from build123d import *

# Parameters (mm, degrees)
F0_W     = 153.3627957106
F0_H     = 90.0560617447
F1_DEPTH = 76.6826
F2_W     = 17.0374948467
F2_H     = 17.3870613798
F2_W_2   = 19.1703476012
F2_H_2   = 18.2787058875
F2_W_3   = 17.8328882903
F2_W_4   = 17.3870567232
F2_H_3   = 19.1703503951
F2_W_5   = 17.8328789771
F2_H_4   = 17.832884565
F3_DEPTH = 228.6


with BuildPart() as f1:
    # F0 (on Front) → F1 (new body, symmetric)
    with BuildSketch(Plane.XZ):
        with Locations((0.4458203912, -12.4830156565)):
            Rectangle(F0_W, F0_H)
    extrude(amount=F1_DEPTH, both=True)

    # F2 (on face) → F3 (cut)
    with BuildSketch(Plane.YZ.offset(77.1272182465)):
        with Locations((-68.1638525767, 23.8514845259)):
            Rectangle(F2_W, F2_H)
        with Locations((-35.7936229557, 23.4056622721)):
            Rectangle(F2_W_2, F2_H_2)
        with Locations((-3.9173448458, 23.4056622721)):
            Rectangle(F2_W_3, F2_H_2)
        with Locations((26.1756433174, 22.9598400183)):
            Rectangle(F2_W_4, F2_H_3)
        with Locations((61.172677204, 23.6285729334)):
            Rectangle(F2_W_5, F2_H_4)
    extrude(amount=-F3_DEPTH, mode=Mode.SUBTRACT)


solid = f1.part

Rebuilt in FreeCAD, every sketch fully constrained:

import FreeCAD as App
import Part
import Sketcher
from FreeCAD import Vector
Q = App.Units.Quantity

doc = App.newDocument("Part")
params = doc.addObject("Spreadsheet::Sheet", "Params")
for row, (alias, value) in enumerate([
    ("pad1_length", "6.038 in"),
    ("pocket1_length", "9 in"),
], start=1):
    params.set(f"A{row}", alias)
    params.set(f"B{row}", "=" + value)
    params.setAlias(f"B{row}", alias)

body = doc.addObject("PartDesign::Body", "Body")

# Sketch on XZ plane
sketch1 = body.newObject("Sketcher::SketchObject", "Sketch")
sketch1.AttachmentSupport = (doc.getObject("XZ_Plane"), [""])
sketch1.MapMode = "FlatFace"
sketch1.addGeometry(Part.LineSegment(Vector(-76, 33, 0), Vector(-76, -58, 0)), False)
sketch1.addGeometry(Part.LineSegment(Vector(-76, -58, 0), Vector(77, -58, 0)), False)
sketch1.addGeometry(Part.LineSegment(Vector(77, -58, 0), Vector(77, 33, 0)), False)
sketch1.addGeometry(Part.LineSegment(Vector(77, 33, 0), Vector(-76, 33, 0)), False)
sketch1.addConstraint(Sketcher.Constraint("Coincident", 0, 2, 1, 1))
sketch1.addConstraint(Sketcher.Constraint("Coincident", 1, 2, 2, 1))
sketch1.addConstraint(Sketcher.Constraint("Coincident", 2, 2, 3, 1))
sketch1.addConstraint(Sketcher.Constraint("Coincident", 3, 2, 0, 1))
sketch1.addConstraint(Sketcher.Constraint("Vertical", 0))
sketch1.addConstraint(Sketcher.Constraint("Horizontal", 1))
sketch1.addConstraint(Sketcher.Constraint("Vertical", 2))
sketch1.addConstraint(Sketcher.Constraint("Horizontal", 3))
sketch1.addConstraint(Sketcher.Constraint("DistanceY", -1, 1, 2, 2, Q("1.2812998 in")))
sketch1.addConstraint(Sketcher.Constraint("DistanceY", 0, 2, 0, 1, 90.056062))
sketch1.addConstraint(Sketcher.Constraint("DistanceX", 1, 1, 1, 2, 153.362796))
sketch1.addConstraint(Sketcher.Constraint("DistanceX", -1, 1, 1, 2, 77.127218))
pad1 = body.newObject("PartDesign::Pad", "Pad")
pad1.Profile = sketch1
pad1.setExpression("Length", "Params.pad1_length")
pad1.Midplane = True

# Sketch on YZ plane
sketch2 = body.newObject("Sketcher::SketchObject", "Sketch001")
sketch2.AttachmentSupport = (doc.getObject("YZ_Plane"), [""])
sketch2.MapMode = "FlatFace"
sketch2.AttachmentOffset = App.Placement(Vector(0, 0, 77.127218), App.Rotation())
sketch2.addGeometry(Part.LineSegment(Vector(-77, 33, 0), Vector(-77, 15, 0)), False)
sketch2.addGeometry(Part.LineSegment(Vector(-77, 15, 0), Vector(-60, 15, 0)), False)
sketch2.addGeometry(Part.LineSegment(Vector(-60, 15, 0), Vector(-60, 33, 0)), False)
sketch2.addGeometry(Part.LineSegment(Vector(-60, 33, 0), Vector(-77, 33, 0)), False)
sketch2.addGeometry(Part.LineSegment(Vector(-45, 33, 0), Vector(-45, 14, 0)), False)
sketch2.addGeometry(Part.LineSegment(Vector(-45, 14, 0), Vector(-26, 14, 0)), False)
sketch2.addGeometry(Part.LineSegment(Vector(-26, 14, 0), Vector(-26, 33, 0)), False)
sketch2.addGeometry(Part.LineSegment(Vector(-26, 33, 0), Vector(-45, 33, 0)), False)
sketch2.addGeometry(Part.LineSegment(Vector(-13, 33, 0), Vector(-13, 14, 0)), False)
sketch2.addGeometry(Part.LineSegment(Vector(-13, 14, 0), Vector(5, 14, 0)), False)
sketch2.addGeometry(Part.LineSegment(Vector(5, 14, 0), Vector(5, 33, 0)), False)
sketch2.addGeometry(Part.LineSegment(Vector(5, 33, 0), Vector(-13, 33, 0)), False)
sketch2.addGeometry(Part.LineSegment(Vector(17, 33, 0), Vector(17, 13, 0)), False)
sketch2.addGeometry(Part.LineSegment(Vector(17, 13, 0), Vector(35, 13, 0)), False)
sketch2.addGeometry(Part.LineSegment(Vector(35, 13, 0), Vector(35, 33, 0)), False)
sketch2.addGeometry(Part.LineSegment(Vector(35, 33, 0), Vector(17, 33, 0)), False)
sketch2.addGeometry(Part.LineSegment(Vector(52, 33, 0), Vector(52, 15, 0)), False)
sketch2.addGeometry(Part.LineSegment(Vector(52, 15, 0), Vector(70, 15, 0)), False)
sketch2.addGeometry(Part.LineSegment(Vector(70, 15, 0), Vector(70, 33, 0)), False)
sketch2.addGeometry(Part.LineSegment(Vector(70, 33, 0), Vector(52, 33, 0)), False)
sketch2.addConstraint(Sketcher.Constraint("Coincident", 0, 2, 1, 1))
sketch2.addConstraint(Sketcher.Constraint("Coincident", 1, 2, 2, 1))
sketch2.addConstraint(Sketcher.Constraint("Coincident", 2, 2, 3, 1))
sketch2.addConstraint(Sketcher.Constraint("Coincident", 3, 2, 0, 1))
sketch2.addConstraint(Sketcher.Constraint("Coincident", 4, 2, 5, 1))
sketch2.addConstraint(Sketcher.Constraint("Coincident", 5, 2, 6, 1))
sketch2.addConstraint(Sketcher.Constraint("Coincident", 6, 2, 7, 1))
sketch2.addConstraint(Sketcher.Constraint("Coincident", 7, 2, 4, 1))
sketch2.addConstraint(Sketcher.Constraint("Coincident", 8, 2, 9, 1))
sketch2.addConstraint(Sketcher.Constraint("Coincident", 9, 2, 10, 1))
sketch2.addConstraint(Sketcher.Constraint("Coincident", 10, 2, 11, 1))
sketch2.addConstraint(Sketcher.Constraint("Coincident", 11, 2, 8, 1))
sketch2.addConstraint(Sketcher.Constraint("Coincident", 12, 2, 13, 1))
sketch2.addConstraint(Sketcher.Constraint("Coincident", 13, 2, 14, 1))
sketch2.addConstraint(Sketcher.Constraint("Coincident", 14, 2, 15, 1))
sketch2.addConstraint(Sketcher.Constraint("Coincident", 15, 2, 12, 1))
sketch2.addConstraint(Sketcher.Constraint("Coincident", 16, 2, 17, 1))
sketch2.addConstraint(Sketcher.Constraint("Coincident", 17, 2, 18, 1))
sketch2.addConstraint(Sketcher.Constraint("Coincident", 18, 2, 19, 1))
sketch2.addConstraint(Sketcher.Constraint("Coincident", 19, 2, 16, 1))
sketch2.addConstraint(Sketcher.Constraint("Vertical", 0))
sketch2.addConstraint(Sketcher.Constraint("Horizontal", 1))
sketch2.addConstraint(Sketcher.Constraint("Vertical", 2))
sketch2.addConstraint(Sketcher.Constraint("Horizontal", 3))
sketch2.addConstraint(Sketcher.Constraint("Vertical", 4))
sketch2.addConstraint(Sketcher.Constraint("Horizontal", 5))
sketch2.addConstraint(Sketcher.Constraint("Vertical", 6))
sketch2.addConstraint(Sketcher.Constraint("Horizontal", 7))
sketch2.addConstraint(Sketcher.Constraint("Vertical", 8))
sketch2.addConstraint(Sketcher.Constraint("Horizontal", 9))
sketch2.addConstraint(Sketcher.Constraint("Vertical", 10))
sketch2.addConstraint(Sketcher.Constraint("Horizontal", 11))
sketch2.addConstraint(Sketcher.Constraint("Vertical", 12))
sketch2.addConstraint(Sketcher.Constraint("Horizontal", 13))
sketch2.addConstraint(Sketcher.Constraint("Vertical", 14))
sketch2.addConstraint(Sketcher.Constraint("Horizontal", 15))
sketch2.addConstraint(Sketcher.Constraint("Vertical", 16))
sketch2.addConstraint(Sketcher.Constraint("Horizontal", 17))
sketch2.addConstraint(Sketcher.Constraint("Vertical", 18))
sketch2.addConstraint(Sketcher.Constraint("Horizontal", 19))
sketch2.addConstraint(Sketcher.Constraint("Horizontal", 3, 2, 6, 2))
sketch2.addConstraint(Sketcher.Constraint("Horizontal", 5, 2, 8, 2))
sketch2.addConstraint(Sketcher.Constraint("Horizontal", 7, 2, 10, 2))
sketch2.addConstraint(Sketcher.Constraint("Horizontal", 11, 2, 14, 2))
sketch2.addConstraint(Sketcher.Constraint("Horizontal", 15, 2, 18, 2))
sketch2.addConstraint(Sketcher.Constraint("DistanceX", 0, 2, -1, 1, Q("3.019 in")))
sketch2.addConstraint(Sketcher.Constraint("DistanceY", -1, 1, 2, 2, Q("1.2812998 in")))
sketch2.addConstraint(Sketcher.Constraint("DistanceX", 9, 1, 9, 2, 17.832888))
sketch2.addConstraint(Sketcher.Constraint("DistanceX", 17, 1, 17, 2, 17.832879))
sketch2.addConstraint(Sketcher.Constraint("DistanceY", 0, 2, 0, 1, 17.387061))
sketch2.addConstraint(Sketcher.Constraint("DistanceY", 12, 2, 12, 1, 19.17035))
sketch2.addConstraint(Sketcher.Constraint("DistanceX", -1, 1, 9, 2, 4.999099))
sketch2.addConstraint(Sketcher.Constraint("DistanceX", 12, 2, 17, 2, 52.607002))
sketch2.addConstraint(Sketcher.Constraint("DistanceX", 1, 1, 1, 2, 17.037495))
sketch2.addConstraint(Sketcher.Constraint("DistanceX", 5, 1, 5, 2, 19.170348))
sketch2.addConstraint(Sketcher.Constraint("DistanceX", 13, 1, 13, 2, 17.387057))
sketch2.addConstraint(Sketcher.Constraint("DistanceY", 4, 2, 4, 1, 18.278706))
sketch2.addConstraint(Sketcher.Constraint("DistanceY", 16, 2, 16, 1, 17.832885))
sketch2.addConstraint(Sketcher.Constraint("DistanceX", 5, 2, -1, 1, 26.208449))
sketch2.addConstraint(Sketcher.Constraint("DistanceX", -1, 1, 13, 2, 34.869172))
pocket1 = body.newObject("PartDesign::Pocket", "Pocket")
pocket1.Profile = sketch2
pocket1.setExpression("Length", "Params.pocket1_length")

doc.recompute()
